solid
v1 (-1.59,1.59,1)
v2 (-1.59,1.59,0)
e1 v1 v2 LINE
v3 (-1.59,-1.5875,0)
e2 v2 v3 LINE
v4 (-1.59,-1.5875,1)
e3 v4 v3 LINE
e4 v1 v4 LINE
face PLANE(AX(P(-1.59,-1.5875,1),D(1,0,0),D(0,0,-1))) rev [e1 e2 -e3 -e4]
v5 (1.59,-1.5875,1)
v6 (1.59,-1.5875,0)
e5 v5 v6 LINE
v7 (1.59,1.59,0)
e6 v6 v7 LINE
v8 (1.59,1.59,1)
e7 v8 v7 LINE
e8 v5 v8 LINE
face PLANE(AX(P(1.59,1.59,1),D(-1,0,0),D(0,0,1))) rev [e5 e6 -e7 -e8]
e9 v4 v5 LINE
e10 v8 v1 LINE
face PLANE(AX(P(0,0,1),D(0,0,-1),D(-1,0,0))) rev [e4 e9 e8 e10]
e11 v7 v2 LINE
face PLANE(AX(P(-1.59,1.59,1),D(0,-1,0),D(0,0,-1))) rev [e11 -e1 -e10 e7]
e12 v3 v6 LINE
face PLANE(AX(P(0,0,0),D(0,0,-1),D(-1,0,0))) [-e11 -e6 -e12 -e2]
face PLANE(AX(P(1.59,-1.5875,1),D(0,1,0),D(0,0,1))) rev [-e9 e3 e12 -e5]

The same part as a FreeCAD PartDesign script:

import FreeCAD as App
import Part
import Sketcher
from FreeCAD import Vector
Q = App.Units.Quantity

doc = App.newDocument("Part")
body = doc.addObject("PartDesign::Body", "Body")

sketch1 = body.newObject("Sketcher::SketchObject", "Sketch")
sketch1.AttachmentSupport = (doc.getObject("XY_Plane"), [""])
sketch1.MapMode = "FlatFace"
sketch1.addGeometry([
    Part.LineSegment(Vector(-1.6, 1.6, 0), Vector(-1.6, -1.6, 0)),
    Part.LineSegment(Vector(-1.6, -1.6, 0), Vector(1.6, -1.6, 0)),
    Part.LineSegment(Vector(1.6, -1.6, 0), Vector(1.6, 1.6, 0)),
    Part.LineSegment(Vector(1.6, 1.6, 0), Vector(-1.6, 1.6, 0)),
], False)
sketch1.addConstraint([
    Sketcher.Constraint("Coincident", 0, 2, 1, 1),
    Sketcher.Constraint("Coincident", 1, 2, 2, 1),
    Sketcher.Constraint("Coincident", 2, 2, 3, 1),
    Sketcher.Constraint("Coincident", 3, 2, 0, 1),
    Sketcher.Constraint("Vertical", 0),
    Sketcher.Constraint("Horizontal", 1),
    Sketcher.Constraint("Vertical", 2),
    Sketcher.Constraint("Horizontal", 3),
    Sketcher.Constraint("DistanceX", 1, 1, 1, 2, Q("3.18 mm")),
    Sketcher.Constraint("DistanceX", 0, 2, -1, 1, Q("1.59 mm")),
    Sketcher.Constraint("DistanceY", -1, 1, 2, 2, Q("1.59 mm")),
    Sketcher.Constraint("DistanceY", 0, 2, 0, 1, Q("3.1775 mm")),
])
pad1 = body.newObject("PartDesign::Pad", "Pad")
pad1.Profile = sketch1
pad1.Length = 1

doc.recompute()
